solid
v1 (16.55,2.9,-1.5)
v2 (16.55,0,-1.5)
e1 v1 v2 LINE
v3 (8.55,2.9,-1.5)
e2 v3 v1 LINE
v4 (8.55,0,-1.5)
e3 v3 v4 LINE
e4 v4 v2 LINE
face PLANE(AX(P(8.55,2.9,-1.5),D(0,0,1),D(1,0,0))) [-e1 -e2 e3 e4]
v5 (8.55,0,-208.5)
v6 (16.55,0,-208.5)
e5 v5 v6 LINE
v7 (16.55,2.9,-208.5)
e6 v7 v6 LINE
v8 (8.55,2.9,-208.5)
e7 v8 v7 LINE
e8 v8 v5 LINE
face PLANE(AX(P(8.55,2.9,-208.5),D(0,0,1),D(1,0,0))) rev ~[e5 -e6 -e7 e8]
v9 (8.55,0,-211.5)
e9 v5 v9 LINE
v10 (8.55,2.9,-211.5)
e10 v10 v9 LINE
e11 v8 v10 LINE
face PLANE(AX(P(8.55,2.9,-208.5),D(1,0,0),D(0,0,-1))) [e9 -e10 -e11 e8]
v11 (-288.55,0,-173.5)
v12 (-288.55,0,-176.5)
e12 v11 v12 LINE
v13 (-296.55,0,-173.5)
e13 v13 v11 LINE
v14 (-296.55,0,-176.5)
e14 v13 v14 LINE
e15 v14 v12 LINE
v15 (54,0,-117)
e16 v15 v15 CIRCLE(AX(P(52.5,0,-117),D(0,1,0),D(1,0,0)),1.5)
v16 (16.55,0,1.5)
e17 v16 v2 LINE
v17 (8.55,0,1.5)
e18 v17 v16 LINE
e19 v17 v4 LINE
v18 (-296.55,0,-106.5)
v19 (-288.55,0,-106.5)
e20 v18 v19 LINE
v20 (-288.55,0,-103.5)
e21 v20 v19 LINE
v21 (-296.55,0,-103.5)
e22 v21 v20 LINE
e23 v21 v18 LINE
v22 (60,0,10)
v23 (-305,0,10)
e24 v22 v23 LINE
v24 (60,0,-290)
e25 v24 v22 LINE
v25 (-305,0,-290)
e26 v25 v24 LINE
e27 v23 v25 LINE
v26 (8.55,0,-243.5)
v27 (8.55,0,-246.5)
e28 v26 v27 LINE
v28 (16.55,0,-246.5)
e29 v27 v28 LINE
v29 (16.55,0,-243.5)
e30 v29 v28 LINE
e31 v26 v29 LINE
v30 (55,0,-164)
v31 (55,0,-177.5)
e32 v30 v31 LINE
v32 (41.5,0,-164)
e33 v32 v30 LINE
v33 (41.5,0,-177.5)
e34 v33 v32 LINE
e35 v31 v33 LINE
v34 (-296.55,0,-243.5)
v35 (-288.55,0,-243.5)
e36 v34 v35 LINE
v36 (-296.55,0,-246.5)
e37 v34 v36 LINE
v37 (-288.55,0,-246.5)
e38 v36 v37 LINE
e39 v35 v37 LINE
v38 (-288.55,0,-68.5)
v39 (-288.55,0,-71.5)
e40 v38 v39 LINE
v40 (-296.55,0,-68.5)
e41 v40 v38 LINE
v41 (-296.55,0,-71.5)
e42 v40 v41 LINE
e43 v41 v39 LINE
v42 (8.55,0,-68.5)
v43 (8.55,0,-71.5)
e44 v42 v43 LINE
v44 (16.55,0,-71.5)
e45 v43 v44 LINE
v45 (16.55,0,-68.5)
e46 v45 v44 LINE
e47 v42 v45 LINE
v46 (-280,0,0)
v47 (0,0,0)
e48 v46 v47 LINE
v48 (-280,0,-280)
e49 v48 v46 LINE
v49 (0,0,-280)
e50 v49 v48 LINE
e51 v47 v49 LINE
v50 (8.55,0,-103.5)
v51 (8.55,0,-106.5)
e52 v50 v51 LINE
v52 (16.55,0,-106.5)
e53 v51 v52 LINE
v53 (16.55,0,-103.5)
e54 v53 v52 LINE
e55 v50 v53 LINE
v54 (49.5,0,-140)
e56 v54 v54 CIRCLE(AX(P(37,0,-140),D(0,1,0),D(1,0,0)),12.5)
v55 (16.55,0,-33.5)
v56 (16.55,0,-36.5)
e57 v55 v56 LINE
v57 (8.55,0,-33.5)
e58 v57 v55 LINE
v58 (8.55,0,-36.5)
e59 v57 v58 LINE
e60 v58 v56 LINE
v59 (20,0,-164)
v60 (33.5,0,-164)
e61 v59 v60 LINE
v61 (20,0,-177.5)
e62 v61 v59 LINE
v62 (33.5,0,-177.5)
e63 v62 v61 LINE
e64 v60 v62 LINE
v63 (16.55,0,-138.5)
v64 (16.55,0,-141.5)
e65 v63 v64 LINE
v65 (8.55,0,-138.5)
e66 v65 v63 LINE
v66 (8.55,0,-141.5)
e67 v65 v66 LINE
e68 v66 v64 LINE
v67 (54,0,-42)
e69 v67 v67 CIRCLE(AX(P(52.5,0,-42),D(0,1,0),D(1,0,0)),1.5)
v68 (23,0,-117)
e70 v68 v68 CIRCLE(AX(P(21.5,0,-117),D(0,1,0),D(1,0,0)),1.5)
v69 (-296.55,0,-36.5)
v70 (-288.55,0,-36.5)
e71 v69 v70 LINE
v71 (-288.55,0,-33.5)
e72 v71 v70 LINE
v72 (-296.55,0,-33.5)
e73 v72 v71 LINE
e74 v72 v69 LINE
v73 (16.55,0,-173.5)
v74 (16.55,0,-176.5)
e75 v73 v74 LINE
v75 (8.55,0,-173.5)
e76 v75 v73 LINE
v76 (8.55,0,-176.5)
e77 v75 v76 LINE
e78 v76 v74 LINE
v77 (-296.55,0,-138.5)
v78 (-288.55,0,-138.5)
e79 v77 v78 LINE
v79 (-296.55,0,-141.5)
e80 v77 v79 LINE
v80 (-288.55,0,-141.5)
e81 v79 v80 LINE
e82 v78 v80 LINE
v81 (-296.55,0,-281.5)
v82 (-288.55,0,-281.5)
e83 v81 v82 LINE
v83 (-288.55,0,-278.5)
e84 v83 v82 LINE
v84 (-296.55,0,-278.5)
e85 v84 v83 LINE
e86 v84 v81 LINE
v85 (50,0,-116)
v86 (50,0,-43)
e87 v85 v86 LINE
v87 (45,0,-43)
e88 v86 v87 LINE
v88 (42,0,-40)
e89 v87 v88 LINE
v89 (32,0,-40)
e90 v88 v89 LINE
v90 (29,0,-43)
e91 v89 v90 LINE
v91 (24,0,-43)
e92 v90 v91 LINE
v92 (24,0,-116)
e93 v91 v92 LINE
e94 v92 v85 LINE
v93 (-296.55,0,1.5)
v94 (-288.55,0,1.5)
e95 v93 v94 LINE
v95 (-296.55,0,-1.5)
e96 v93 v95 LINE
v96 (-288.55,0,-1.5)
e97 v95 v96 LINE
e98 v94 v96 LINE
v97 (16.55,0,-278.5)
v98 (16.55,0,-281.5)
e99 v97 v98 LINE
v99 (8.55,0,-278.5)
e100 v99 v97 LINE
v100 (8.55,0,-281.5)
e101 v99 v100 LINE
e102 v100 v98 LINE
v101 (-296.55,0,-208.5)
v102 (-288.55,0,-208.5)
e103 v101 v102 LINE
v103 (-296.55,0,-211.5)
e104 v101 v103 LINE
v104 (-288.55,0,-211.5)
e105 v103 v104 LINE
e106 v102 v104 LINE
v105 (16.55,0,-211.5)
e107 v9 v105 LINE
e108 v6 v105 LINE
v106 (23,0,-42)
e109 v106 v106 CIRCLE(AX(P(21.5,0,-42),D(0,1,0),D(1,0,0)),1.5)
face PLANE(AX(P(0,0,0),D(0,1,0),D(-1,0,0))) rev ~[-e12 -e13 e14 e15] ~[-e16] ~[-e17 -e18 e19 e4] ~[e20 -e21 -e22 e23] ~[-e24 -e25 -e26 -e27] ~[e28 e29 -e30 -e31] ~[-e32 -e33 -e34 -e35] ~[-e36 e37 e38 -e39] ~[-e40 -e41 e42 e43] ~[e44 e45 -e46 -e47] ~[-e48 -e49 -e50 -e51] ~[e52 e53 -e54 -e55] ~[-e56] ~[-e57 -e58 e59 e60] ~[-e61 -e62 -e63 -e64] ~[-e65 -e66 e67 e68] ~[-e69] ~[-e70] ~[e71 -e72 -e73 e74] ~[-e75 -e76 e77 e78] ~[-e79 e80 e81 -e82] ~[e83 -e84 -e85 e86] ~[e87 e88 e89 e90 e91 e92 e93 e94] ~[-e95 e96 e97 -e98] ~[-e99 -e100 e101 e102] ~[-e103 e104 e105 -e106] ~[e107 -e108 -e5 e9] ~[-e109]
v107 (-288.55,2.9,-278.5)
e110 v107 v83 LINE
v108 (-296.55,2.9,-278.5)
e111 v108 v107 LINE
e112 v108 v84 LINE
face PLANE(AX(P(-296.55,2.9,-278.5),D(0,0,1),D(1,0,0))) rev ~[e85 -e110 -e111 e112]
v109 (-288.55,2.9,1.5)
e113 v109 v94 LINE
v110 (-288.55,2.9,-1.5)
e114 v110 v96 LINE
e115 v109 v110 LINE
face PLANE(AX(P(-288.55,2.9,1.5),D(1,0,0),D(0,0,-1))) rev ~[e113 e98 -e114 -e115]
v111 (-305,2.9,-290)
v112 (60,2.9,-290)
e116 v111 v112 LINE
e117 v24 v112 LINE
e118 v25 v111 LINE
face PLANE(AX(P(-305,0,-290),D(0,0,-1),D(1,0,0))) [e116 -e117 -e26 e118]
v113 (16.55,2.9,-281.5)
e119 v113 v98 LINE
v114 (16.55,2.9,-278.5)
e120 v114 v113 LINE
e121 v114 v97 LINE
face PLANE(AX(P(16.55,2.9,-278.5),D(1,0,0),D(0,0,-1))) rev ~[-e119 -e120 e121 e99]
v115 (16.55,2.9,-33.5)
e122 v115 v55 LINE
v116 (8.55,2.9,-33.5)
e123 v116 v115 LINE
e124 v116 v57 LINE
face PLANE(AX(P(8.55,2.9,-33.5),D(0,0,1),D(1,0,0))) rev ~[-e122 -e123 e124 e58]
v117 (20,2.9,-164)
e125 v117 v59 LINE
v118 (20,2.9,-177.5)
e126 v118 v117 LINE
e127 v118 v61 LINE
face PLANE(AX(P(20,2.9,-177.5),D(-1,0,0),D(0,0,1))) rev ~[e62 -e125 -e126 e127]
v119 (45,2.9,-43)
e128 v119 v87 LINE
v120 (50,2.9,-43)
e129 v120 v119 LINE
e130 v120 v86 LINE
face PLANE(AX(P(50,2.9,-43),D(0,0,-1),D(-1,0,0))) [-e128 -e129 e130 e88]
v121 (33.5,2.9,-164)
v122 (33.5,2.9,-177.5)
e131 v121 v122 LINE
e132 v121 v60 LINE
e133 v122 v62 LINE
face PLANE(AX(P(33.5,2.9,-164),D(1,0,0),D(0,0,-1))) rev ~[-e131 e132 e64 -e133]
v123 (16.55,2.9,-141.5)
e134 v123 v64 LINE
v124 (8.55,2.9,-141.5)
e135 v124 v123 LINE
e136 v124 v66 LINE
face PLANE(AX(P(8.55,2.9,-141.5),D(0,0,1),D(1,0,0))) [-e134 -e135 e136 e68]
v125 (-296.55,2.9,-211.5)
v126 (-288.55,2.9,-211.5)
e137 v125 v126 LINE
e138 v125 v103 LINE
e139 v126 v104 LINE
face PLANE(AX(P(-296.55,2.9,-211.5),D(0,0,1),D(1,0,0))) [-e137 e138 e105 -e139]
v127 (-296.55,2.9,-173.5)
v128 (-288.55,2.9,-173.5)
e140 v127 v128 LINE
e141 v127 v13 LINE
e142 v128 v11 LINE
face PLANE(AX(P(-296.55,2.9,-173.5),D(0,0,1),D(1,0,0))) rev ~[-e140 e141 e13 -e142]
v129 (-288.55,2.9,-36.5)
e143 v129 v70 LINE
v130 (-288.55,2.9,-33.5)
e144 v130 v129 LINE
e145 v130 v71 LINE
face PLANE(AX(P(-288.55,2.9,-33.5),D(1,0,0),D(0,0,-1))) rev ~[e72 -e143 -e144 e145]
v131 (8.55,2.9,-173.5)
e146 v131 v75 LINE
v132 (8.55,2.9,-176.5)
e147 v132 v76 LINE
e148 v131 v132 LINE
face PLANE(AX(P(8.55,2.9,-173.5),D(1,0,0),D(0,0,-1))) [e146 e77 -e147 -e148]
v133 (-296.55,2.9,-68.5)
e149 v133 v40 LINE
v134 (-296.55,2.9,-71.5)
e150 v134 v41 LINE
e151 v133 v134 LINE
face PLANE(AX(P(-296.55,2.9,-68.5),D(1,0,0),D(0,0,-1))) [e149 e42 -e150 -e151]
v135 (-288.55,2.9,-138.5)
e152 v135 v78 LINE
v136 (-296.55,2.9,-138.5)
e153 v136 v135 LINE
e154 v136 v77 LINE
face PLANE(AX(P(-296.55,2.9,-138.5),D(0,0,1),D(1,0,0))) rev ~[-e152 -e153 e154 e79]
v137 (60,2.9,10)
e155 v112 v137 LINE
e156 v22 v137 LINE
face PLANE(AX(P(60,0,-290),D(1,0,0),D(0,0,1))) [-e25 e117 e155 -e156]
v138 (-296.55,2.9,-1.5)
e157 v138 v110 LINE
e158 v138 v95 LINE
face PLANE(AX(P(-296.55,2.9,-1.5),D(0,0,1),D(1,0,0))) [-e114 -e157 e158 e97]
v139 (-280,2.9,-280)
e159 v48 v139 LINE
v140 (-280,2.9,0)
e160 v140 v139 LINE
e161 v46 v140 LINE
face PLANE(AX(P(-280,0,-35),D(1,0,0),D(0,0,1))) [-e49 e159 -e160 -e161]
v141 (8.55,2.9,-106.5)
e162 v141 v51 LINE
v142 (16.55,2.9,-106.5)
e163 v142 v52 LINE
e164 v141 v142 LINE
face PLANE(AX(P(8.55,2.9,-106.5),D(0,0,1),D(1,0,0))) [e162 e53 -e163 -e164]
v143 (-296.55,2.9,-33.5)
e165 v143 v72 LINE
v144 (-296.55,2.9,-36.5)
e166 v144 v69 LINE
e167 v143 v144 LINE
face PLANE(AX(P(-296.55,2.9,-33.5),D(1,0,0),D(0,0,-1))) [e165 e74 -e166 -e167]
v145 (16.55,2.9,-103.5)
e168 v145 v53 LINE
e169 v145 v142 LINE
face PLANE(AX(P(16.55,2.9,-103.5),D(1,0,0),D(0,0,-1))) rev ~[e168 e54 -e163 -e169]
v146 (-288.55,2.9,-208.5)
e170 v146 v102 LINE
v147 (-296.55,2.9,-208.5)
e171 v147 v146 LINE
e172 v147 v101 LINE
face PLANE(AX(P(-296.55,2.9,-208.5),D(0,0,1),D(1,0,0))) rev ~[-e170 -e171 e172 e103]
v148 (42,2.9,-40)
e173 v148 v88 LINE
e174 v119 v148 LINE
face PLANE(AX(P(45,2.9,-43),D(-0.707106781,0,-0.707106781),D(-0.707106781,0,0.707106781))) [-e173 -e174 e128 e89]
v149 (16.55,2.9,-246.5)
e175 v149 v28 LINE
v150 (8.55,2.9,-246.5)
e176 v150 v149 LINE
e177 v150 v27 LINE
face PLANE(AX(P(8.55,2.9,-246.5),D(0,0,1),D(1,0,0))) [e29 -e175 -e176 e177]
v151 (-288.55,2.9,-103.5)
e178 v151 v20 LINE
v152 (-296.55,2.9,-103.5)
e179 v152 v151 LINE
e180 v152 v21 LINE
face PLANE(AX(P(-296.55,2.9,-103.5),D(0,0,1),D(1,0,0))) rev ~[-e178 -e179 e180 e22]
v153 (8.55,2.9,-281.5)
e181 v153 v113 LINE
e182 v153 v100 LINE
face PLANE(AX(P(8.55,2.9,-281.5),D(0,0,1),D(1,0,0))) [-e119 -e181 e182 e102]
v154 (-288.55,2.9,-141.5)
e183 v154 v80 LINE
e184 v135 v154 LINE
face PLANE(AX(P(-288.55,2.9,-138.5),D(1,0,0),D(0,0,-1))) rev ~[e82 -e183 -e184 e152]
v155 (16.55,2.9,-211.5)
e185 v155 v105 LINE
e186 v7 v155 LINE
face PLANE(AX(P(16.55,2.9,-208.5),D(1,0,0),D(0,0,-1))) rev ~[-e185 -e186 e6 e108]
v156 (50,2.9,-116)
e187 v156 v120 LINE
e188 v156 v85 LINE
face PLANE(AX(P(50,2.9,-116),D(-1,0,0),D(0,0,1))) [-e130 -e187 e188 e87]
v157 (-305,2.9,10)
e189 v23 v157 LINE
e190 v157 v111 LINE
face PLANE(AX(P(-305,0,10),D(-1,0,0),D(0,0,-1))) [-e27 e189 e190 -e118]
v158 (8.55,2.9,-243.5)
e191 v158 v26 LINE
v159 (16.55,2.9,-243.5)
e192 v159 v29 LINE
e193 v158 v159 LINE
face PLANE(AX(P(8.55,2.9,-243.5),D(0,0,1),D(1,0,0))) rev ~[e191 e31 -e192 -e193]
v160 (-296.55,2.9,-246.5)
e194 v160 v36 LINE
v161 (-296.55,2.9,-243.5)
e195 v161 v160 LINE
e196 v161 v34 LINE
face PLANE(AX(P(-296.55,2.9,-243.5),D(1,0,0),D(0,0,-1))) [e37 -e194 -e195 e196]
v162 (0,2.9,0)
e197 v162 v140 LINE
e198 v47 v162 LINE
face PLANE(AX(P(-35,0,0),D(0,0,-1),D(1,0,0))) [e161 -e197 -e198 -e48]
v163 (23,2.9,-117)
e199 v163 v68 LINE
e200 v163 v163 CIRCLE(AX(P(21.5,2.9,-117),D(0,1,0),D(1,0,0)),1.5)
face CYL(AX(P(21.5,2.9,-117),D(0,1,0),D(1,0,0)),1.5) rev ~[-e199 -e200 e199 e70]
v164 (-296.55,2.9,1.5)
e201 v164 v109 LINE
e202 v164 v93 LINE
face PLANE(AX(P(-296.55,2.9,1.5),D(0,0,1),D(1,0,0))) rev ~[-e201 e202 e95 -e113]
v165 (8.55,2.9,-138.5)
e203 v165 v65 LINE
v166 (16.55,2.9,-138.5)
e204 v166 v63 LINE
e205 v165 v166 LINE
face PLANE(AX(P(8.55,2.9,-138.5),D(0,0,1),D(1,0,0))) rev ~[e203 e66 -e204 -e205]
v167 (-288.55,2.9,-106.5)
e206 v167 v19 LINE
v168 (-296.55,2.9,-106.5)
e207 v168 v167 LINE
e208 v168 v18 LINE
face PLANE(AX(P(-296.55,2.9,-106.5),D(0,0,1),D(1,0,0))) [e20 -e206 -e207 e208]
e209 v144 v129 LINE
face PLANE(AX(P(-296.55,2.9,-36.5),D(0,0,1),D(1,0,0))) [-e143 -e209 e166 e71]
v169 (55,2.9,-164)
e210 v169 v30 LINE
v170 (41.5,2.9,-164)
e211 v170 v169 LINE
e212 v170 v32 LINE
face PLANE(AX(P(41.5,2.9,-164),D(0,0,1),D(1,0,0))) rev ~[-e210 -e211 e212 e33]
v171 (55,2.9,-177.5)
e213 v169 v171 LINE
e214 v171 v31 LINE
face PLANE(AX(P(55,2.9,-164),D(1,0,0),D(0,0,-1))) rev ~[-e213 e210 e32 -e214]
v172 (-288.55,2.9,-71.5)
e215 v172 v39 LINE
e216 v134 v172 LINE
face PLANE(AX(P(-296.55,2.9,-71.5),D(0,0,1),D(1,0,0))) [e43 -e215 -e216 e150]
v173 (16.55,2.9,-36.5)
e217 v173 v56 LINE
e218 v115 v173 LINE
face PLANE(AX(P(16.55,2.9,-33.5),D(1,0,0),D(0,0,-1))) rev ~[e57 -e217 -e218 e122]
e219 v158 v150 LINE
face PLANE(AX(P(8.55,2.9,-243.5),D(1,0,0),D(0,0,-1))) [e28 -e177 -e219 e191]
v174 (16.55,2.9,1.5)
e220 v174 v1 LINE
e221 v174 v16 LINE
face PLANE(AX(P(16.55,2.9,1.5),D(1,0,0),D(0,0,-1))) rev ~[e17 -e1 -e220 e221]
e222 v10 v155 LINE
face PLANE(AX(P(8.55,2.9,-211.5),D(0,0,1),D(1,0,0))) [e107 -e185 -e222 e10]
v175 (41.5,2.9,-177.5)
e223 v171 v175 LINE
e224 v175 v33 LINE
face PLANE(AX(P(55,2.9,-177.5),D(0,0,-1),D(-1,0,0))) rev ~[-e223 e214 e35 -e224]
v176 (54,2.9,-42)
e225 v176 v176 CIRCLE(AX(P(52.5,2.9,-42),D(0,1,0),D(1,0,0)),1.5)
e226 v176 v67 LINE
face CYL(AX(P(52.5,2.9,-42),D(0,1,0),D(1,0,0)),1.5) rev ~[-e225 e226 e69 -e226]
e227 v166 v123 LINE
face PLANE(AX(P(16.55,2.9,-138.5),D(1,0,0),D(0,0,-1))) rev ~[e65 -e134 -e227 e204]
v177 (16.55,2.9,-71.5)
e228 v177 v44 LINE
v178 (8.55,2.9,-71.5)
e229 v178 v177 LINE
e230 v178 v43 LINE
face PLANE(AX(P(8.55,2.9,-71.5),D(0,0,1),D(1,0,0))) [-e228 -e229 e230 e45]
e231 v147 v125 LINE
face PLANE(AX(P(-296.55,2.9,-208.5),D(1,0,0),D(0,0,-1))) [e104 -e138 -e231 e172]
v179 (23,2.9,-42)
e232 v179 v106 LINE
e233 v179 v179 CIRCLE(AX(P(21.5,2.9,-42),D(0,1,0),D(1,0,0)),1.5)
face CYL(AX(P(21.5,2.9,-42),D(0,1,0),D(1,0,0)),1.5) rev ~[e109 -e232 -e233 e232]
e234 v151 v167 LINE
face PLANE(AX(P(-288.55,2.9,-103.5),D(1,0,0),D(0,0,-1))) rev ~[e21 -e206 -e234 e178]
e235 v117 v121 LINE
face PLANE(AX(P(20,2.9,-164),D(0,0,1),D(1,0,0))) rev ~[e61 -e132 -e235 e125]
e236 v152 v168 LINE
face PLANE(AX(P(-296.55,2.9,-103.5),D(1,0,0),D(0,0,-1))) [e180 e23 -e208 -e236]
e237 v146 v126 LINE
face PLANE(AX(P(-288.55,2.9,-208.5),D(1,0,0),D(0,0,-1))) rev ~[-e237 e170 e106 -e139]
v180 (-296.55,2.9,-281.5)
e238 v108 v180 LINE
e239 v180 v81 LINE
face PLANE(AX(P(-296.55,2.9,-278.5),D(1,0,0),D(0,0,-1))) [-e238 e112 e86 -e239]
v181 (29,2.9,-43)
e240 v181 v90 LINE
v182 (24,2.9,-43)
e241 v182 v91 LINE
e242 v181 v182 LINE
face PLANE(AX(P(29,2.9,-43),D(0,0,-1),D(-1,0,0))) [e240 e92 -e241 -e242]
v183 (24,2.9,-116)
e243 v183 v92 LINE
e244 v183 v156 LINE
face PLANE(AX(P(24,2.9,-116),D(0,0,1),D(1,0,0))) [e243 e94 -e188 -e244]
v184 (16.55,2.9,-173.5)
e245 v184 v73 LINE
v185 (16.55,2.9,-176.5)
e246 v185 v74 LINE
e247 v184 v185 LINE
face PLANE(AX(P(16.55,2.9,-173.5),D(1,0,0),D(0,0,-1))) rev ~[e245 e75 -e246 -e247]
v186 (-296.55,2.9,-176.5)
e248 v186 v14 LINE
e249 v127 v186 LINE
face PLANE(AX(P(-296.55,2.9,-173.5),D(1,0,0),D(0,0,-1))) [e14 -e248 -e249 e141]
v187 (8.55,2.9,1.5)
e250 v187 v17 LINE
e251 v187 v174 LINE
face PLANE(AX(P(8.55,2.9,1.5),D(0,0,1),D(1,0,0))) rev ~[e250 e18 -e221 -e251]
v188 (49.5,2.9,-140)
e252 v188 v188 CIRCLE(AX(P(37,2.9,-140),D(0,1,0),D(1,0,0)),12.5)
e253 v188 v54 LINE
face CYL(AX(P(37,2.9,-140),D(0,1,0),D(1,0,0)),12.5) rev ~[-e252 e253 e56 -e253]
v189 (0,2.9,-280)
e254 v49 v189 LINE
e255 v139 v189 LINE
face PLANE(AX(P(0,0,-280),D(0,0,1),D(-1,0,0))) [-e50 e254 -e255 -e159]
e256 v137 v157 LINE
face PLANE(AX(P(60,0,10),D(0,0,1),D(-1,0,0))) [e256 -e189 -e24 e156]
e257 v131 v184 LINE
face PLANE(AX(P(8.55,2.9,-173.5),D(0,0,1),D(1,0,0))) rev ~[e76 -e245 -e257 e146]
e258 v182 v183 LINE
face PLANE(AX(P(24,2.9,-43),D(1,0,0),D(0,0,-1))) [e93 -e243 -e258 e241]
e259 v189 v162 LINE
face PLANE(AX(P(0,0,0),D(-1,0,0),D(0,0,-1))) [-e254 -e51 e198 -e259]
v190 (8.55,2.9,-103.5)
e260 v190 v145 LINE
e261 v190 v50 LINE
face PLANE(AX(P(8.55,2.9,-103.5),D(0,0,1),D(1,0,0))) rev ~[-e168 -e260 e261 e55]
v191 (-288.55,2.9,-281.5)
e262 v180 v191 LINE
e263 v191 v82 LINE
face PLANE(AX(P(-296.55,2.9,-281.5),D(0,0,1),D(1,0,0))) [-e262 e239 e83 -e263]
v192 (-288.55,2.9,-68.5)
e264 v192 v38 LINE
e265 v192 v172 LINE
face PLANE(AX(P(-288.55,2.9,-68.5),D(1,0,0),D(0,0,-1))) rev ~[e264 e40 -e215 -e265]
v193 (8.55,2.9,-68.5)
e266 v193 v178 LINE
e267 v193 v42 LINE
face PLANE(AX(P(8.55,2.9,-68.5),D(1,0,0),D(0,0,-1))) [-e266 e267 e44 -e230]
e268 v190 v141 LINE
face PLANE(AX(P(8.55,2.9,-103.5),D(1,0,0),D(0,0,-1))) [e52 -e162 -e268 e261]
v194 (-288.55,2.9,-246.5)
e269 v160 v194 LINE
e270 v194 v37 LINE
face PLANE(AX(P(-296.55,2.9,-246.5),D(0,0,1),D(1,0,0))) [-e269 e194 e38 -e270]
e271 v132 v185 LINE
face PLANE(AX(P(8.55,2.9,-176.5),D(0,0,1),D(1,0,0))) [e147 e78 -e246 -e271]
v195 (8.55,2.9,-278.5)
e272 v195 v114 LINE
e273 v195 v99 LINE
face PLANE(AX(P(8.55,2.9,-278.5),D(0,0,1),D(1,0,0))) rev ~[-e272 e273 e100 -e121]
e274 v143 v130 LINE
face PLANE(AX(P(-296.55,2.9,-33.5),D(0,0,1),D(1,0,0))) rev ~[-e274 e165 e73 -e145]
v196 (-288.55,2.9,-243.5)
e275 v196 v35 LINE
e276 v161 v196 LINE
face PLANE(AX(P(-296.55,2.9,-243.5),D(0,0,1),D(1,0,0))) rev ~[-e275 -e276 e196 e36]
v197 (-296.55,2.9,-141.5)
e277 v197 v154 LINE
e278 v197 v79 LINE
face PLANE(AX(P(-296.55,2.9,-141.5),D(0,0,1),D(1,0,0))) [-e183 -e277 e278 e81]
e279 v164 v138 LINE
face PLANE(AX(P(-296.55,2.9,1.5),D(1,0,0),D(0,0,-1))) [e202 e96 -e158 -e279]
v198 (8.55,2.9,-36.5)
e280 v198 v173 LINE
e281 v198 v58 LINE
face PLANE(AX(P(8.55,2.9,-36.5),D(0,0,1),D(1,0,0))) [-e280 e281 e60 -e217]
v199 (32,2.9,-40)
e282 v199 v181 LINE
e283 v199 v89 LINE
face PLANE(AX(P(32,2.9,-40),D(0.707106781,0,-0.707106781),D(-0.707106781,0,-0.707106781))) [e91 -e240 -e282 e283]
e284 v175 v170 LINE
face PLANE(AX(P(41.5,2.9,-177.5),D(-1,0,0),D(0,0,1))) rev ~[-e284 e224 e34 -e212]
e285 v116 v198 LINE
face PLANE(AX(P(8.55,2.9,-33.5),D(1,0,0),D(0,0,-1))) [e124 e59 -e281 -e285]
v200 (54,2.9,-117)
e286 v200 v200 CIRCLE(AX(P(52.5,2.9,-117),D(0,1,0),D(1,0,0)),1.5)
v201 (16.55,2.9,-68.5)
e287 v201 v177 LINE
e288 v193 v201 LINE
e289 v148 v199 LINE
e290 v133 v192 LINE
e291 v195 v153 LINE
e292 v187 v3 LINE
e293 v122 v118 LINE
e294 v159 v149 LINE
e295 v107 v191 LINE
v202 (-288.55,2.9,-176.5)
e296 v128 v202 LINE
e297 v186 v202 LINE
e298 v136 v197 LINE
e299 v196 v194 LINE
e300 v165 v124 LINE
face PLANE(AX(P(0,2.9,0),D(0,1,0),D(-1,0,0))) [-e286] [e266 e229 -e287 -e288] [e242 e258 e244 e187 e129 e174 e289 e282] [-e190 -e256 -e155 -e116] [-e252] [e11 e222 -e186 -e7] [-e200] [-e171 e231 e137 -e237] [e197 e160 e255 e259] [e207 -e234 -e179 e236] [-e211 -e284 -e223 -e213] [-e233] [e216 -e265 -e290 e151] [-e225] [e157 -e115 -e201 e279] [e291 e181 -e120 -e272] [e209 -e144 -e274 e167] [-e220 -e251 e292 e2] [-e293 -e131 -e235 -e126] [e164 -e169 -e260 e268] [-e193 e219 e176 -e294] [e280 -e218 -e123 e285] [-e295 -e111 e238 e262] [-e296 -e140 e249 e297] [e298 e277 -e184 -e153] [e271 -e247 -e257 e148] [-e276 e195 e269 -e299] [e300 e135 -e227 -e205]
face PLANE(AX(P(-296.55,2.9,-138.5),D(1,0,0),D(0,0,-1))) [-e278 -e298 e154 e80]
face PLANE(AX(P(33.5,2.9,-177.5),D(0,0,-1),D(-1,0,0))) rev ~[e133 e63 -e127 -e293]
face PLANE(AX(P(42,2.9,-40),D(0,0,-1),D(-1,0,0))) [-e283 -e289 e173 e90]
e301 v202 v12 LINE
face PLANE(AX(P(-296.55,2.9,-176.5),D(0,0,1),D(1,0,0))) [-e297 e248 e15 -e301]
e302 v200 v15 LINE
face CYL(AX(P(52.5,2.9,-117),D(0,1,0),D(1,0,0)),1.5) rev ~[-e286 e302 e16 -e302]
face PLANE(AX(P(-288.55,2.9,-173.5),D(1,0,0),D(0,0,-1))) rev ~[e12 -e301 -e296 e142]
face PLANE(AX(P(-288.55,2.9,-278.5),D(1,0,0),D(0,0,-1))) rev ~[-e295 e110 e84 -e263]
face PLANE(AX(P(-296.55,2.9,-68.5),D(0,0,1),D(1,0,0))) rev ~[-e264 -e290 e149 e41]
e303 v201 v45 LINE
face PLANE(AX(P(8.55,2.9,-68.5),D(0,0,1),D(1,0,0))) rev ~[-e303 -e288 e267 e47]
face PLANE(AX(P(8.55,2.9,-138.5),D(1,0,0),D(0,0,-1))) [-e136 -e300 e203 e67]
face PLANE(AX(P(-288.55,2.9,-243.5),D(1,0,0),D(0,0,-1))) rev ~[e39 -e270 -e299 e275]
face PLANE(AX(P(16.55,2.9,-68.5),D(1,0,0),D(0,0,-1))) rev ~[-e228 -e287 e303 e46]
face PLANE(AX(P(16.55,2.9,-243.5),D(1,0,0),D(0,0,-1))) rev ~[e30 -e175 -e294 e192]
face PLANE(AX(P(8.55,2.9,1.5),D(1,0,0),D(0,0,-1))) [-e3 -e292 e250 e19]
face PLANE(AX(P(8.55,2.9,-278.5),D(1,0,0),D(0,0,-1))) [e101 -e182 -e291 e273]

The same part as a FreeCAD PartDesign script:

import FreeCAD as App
import Part
import Sketcher
from FreeCAD import Vector
Q = App.Units.Quantity


def add_polygon(sketch, points):
    """Adds a closed chain of lines whose ends are joined by coincident constraints."""
    first, n = sketch.GeometryCount, len(points)
    for a, b in zip(points, points[1:] + points[:1]):
        sketch.addGeometry(Part.LineSegment(App.Vector(*a, 0), App.Vector(*b, 0)), False)
    for i in range(n):
        sketch.addConstraint(Sketcher.Constraint("Coincident", first + i, 2, first + (i + 1) % n, 1))

doc = App.newDocument("Part")
body = doc.addObject("PartDesign::Body", "Body")

sketch1 = body.newObject("Sketcher::SketchObject", "Sketch")
sketch1.AttachmentSupport = (doc.getObject("XZ_Plane"), [""])
sketch1.MapMode = "FlatFace"
add_polygon(sketch1, [(-305, 10), (60, 10), (60, -290), (-305, -290)])
add_polygon(sketch1, [(0, 0), (-280, 0), (-280, -280), (0, -280)])
sketch1.addConstraint([
    Sketcher.Constraint("Horizontal", 0),
    Sketcher.Constraint("Vertical", 1),
    Sketcher.Constraint("Horizontal", 2),
    Sketcher.Constraint("Vertical", 3),
    Sketcher.Constraint("Horizontal", 4),
    Sketcher.Constraint("Vertical", 5),
    Sketcher.Constraint("Horizontal", 6),
    Sketcher.Constraint("Vertical", 7),
    Sketcher.Constraint("Coincident", 7, 2, -1, 1),
    Sketcher.Constraint("Equal", 6, 5),
    Sketcher.Constraint("DistanceX", -1, 1, 0, 2, Q("60 mm")),
    Sketcher.Constraint("DistanceY", -1, 1, 0, 2, Q("10 mm")),
    Sketcher.Constraint("DistanceX", 3, 2, 4, 2, Q("25 mm")),
    Sketcher.Constraint("DistanceY", 2, 2, 5, 2, Q("10 mm")),
    Sketcher.Constraint("DistanceX", 0, 1, 0, 2, Q("365 mm")),
])
pad1 = body.newObject("PartDesign::Pad", "Pad")
pad1.Profile = sketch1
pad1.Length = 2.9
pad1.Reversed = True

sketch2 = body.newObject("Sketcher::SketchObject", "Sketch001")
sketch2.AttachmentSupport = (doc.getObject("XZ_Plane"), [""])
sketch2.MapMode = "FlatFace"
sketch2.AttachmentOffset = App.Placement(Vector(0, 0, -2.9), App.Rotation())
add_polygon(sketch2, [(-296.6, -71.5), (-296.6, -68.5), (-288.6, -68.5), (-288.6, -71.5)])
add_polygon(sketch2, [(-296.6, -106.5), (-296.6, -103.5), (-288.6, -103.5), (-288.6, -106.5)])
add_polygon(sketch2, [(-296.6, -141.5), (-296.6, -138.5), (-288.6, -138.5), (-288.6, -141.5)])
add_polygon(sketch2, [(-296.6, -176.5), (-296.6, -173.5), (-288.6, -173.5), (-288.6, -176.5)])
add_polygon(sketch2, [(-296.6, -211.5), (-296.6, -208.5), (-288.6, -208.5), (-288.6, -211.5)])
add_polygon(sketch2, [(-296.6, -246.5), (-296.6, -243.5), (-288.6, -243.5), (-288.6, -246.5)])
add_polygon(sketch2, [(-296.6, -281.5), (-296.6, -278.5), (-288.6, -278.5), (-288.6, -281.5)])
add_polygon(sketch2, [(8.6, -281.5), (8.6, -278.5), (16.6, -278.5), (16.6, -281.5)])
add_polygon(sketch2, [(8.6, -246.5), (8.6, -243.5), (16.6, -243.5), (16.6, -246.5)])
add_polygon(sketch2, [(8.6, -106.5), (8.6, -103.5), (16.6, -103.5), (16.6, -106.5)])
add_polygon(sketch2, [(8.6, -141.5), (8.6, -138.5), (16.6, -138.5), (16.6, -141.5)])
add_polygon(sketch2, [(8.6, -211.5), (8.6, -208.5), (16.6, -208.5), (16.6, -211.5)])
add_polygon(sketch2, [(8.6, -176.5), (8.6, -173.5), (16.6, -173.5), (16.6, -176.5)])
add_polygon(sketch2, [(8.6, -1.5), (8.6, 1.5), (16.6, 1.5), (16.6, -1.5)])
add_polygon(sketch2, [(8.6, -36.5), (8.6, -33.5), (16.6, -33.5), (16.6, -36.5)])
add_polygon(sketch2, [(8.6, -71.5), (8.6, -68.5), (16.6, -68.5), (16.6, -71.5)])
add_polygon(sketch2, [(-296.6, -1.5), (-296.6, 1.5), (-288.6, 1.5), (-288.6, -1.5)])
add_polygon(sketch2, [(-296.6, -36.5), (-296.6, -33.5), (-288.6, -33.5), (-288.6, -36.5)])
sketch2.addConstraint([
    Sketcher.Constraint("Vertical", 0),
    Sketcher.Constraint("Horizontal", 1),
    Sketcher.Constraint("Vertical", 2),
    Sketcher.Constraint("Horizontal", 3),
    Sketcher.Constraint("Vertical", 4),
    Sketcher.Constraint("Horizontal", 5),
    Sketcher.Constraint("Vertical", 6),
    Sketcher.Constraint("Horizontal", 7),
    Sketcher.Constraint("Vertical", 8),
    Sketcher.Constraint("Horizontal", 9),
    Sketcher.Constraint("Vertical", 10),
    Sketcher.Constraint("Horizontal", 11),
    Sketcher.Constraint("Vertical", 12),
    Sketcher.Constraint("Horizontal", 13),
    Sketcher.Constraint("Vertical", 14),
    Sketcher.Constraint("Horizontal", 15),
    Sketcher.Constraint("Vertical", 16),
    Sketcher.Constraint("Horizontal", 17),
    Sketcher.Constraint("Vertical", 18),
    Sketcher.Constraint("Horizontal", 19),
    Sketcher.Constraint("Vertical", 20),
    Sketcher.Constraint("Horizontal", 21),
    Sketcher.Constraint("Vertical", 22),
    Sketcher.Constraint("Horizontal", 23),
    Sketcher.Constraint("Vertical", 24),
    Sketcher.Constraint("Horizontal", 25),
    Sketcher.Constraint("Vertical", 26),
    Sketcher.Constraint("Horizontal", 27),
    Sketcher.Constraint("Vertical", 28),
    Sketcher.Constraint("Horizontal", 29),
    Sketcher.Constraint("Vertical", 30),
    Sketcher.Constraint("Horizontal", 31),
    Sketcher.Constraint("Vertical", 32),
    Sketcher.Constraint("Horizontal", 33),
    Sketcher.Constraint("Vertical", 34),
    Sketcher.Constraint("Horizontal", 35),
    Sketcher.Constraint("Vertical", 36),
    Sketcher.Constraint("Horizontal", 37),
    Sketcher.Constraint("Vertical", 38),
    Sketcher.Constraint("Horizontal", 39),
    Sketcher.Constraint("Vertical", 40),
    Sketcher.Constraint("Horizontal", 41),
    Sketcher.Constraint("Vertical", 42),
    Sketcher.Constraint("Horizontal", 43),
    Sketcher.Constraint("Vertical", 44),
    Sketcher.Constraint("Horizontal", 45),
    Sketcher.Constraint("Vertical", 46),
    Sketcher.Constraint("Horizontal", 47),
    Sketcher.Constraint("Vertical", 48),
    Sketcher.Constraint("Horizontal", 49),
    Sketcher.Constraint("Vertical", 50),
    Sketcher.Constraint("Horizontal", 51),
    Sketcher.Constraint("Vertical", 52),
    Sketcher.Constraint("Horizontal", 53),
    Sketcher.Constraint("Vertical", 54),
    Sketcher.Constraint("Horizontal", 55),
    Sketcher.Constraint("Vertical", 56),
    Sketcher.Constraint("Horizontal", 57),
    Sketcher.Constraint("Vertical", 58),
    Sketcher.Constraint("Horizontal", 59),
    Sketcher.Constraint("Vertical", 60),
    Sketcher.Constraint("Horizontal", 61),
    Sketcher.Constraint("Vertical", 62),
    Sketcher.Constraint("Horizontal", 63),
    Sketcher.Constraint("Vertical", 64),
    Sketcher.Constraint("Horizontal", 65),
    Sketcher.Constraint("Vertical", 66),
    Sketcher.Constraint("Horizontal", 67),
    Sketcher.Constraint("Vertical", 68),
    Sketcher.Constraint("Horizontal", 69),
    Sketcher.Constraint("Vertical", 70),
    Sketcher.Constraint("Horizontal", 71),
    Sketcher.Constraint("Horizontal", 25, 2, 28, 2),
    Sketcher.Constraint("Horizontal", 27, 2, 30, 2),
    Sketcher.Constraint("Horizontal", 21, 2, 32, 2),
    Sketcher.Constraint("Horizontal", 23, 2, 34, 2),
    Sketcher.Constraint("Horizontal", 5, 2, 36, 2),
    Sketcher.Constraint("Horizontal", 7, 2, 38, 2),
    Sketcher.Constraint("Horizontal", 9, 2, 40, 2),
    Sketcher.Constraint("Horizontal", 11, 2, 42, 2),
    Sketcher.Constraint("Horizontal", 17, 2, 44, 2),
    Sketcher.Constraint("Horizontal", 19, 2, 46, 2),
    Sketcher.Constraint("Horizontal", 13, 2, 48, 2),
    Sketcher.Constraint("Horizontal", 15, 2, 50, 2),
    Sketcher.Constraint("Horizontal", 1, 2, 60, 2),
    Sketcher.Constraint("Horizontal", 3, 2, 62, 2),
    Sketcher.Constraint("Horizontal", 53, 2, 64, 2),
    Sketcher.Constraint("Horizontal", 55, 2, 66, 2),
    Sketcher.Constraint("Horizontal", 57, 2, 68, 2),
    Sketcher.Constraint("Horizontal", 59, 2, 70, 2),
    Sketcher.Constraint("Vertical", 3, 2, 4, 2),
    Sketcher.Constraint("Vertical", 2, 2, 5, 2),
    Sketcher.Constraint("Vertical", 7, 2, 8, 2),
    Sketcher.Constraint("Vertical", 6, 2, 9, 2),
    Sketcher.Constraint("Vertical", 11, 2, 12, 2),
    Sketcher.Constraint("Vertical", 10, 2, 13, 2),
    Sketcher.Constraint("Vertical", 15, 2, 16, 2),
    Sketcher.Constraint("Vertical", 14, 2, 17, 2),
    Sketcher.Constraint("Vertical", 19, 2, 20, 2),
    Sketcher.Constraint("Vertical", 18, 2, 21, 2),
    Sketcher.Constraint("Vertical", 23, 2, 24, 2),
    Sketcher.Constraint("Vertical", 22, 2, 25, 2),
    Sketcher.Constraint("Vertical", 31, 2, 32, 2),
    Sketcher.Constraint("Vertical", 30, 2, 33, 2),
    Sketcher.Constraint("Vertical", 35, 2, 36, 2),
    Sketcher.Constraint("Vertical", 34, 2, 37, 2),
    Sketcher.Constraint("Vertical", 39, 2, 40, 2),
    Sketcher.Constraint("Vertical", 38, 2, 41, 2),
    Sketcher.Constraint("Vertical", 43, 2, 44, 2),
    Sketcher.Constraint("Vertical", 42, 2, 45, 2),
    Sketcher.Constraint("Vertical", 47, 2, 48, 2),
    Sketcher.Constraint("Vertical", 46, 2, 49, 2),
    Sketcher.Constraint("Vertical", 51, 2, 52, 2),
    Sketcher.Constraint("Vertical", 50, 2, 53, 2),
    Sketcher.Constraint("Vertical", 55, 2, 56, 2),
    Sketcher.Constraint("Vertical", 54, 2, 57, 2),
    Sketcher.Constraint("Vertical", 59, 2, 60, 2),
    Sketcher.Constraint("Vertical", 58, 2, 61, 2),
    Sketcher.Constraint("Vertical", 27, 2, 64, 2),
    Sketcher.Constraint("Vertical", 26, 2, 65, 2),
    Sketcher.Constraint("Vertical", 67, 2, 68, 2),
    Sketcher.Constraint("Vertical", 66, 2, 69, 2),
    Sketcher.Constraint("Equal", 27, 29),
    Sketcher.Constraint("Equal", 2, 4),
    Sketcher.Constraint("Equal", 6, 8),
    Sketcher.Constraint("Equal", 10, 12),
    Sketcher.Constraint("Equal", 14, 16),
    Sketcher.Constraint("Equal", 18, 20),
    Sketcher.Constraint("Equal", 22, 24),
    Sketcher.Constraint("Equal", 50, 52),
    Sketcher.Constraint("Equal", 54, 56),
    Sketcher.Constraint("DistanceX", 1, 1, 1, 2, Q("8 mm")),
    Sketcher.Constraint("DistanceY", 0, 1, 0, 2, Q("3 mm")),
    Sketcher.Constraint("DistanceY", 0, 2, -1, 1, Q("68.5 mm")),
    Sketcher.Constraint("DistanceY", 4, 2, -1, 1, Q("103.5 mm")),
    Sketcher.Constraint("DistanceY", 8, 2, -1, 1, Q("138.5 mm")),
    Sketcher.Constraint("DistanceY", 12, 2, -1, 1, Q("173.5 mm")),
    Sketcher.Constraint("DistanceY", 16, 2, -1, 1, Q("208.5 mm")),
    Sketcher.Constraint("DistanceY", 20, 2, -1, 1, Q("243.5 mm")),
    Sketcher.Constraint("DistanceY", 24, 2, -1, 1, Q("278.5 mm")),
    Sketcher.Constraint("DistanceY", -1, 1, 52, 2, Q("1.5 mm")),
    Sketcher.Constraint("DistanceY", 56, 2, -1, 1, Q("33.5 mm")),
    Sketcher.Constraint("DistanceX", 0, 2, -1, 1, Q("296.55 mm")),
    Sketcher.Constraint("DistanceX", -1, 1, 28, 2, Q("8.55 mm")),
])
pocket1 = body.newObject("PartDesign::Pocket", "Pocket")
pocket1.Profile = sketch2
pocket1.Type = "ThroughAll"
pocket1.Reversed = True

sketch3 = body.newObject("Sketcher::SketchObject", "Sketch002")
sketch3.AttachmentSupport = (doc.getObject("XZ_Plane"), [""])
sketch3.MapMode = "FlatFace"
sketch3.AttachmentOffset = App.Placement(Vector(0, 0, -2.9), App.Rotation())
add_polygon(sketch3, [(24, -116), (24, -43), (29, -43), (32, -40), (42, -40), (45, -43), (50, -43), (50, -116)])
sketch3.addGeometry(Part.Circle(Vector(21.5, -117, 0), Vector(0, 0, 1), 1.5), False)
sketch3.addGeometry(Part.Circle(Vector(52.5, -117, 0), Vector(0, 0, 1), 1.5), False)
sketch3.addGeometry(Part.Circle(Vector(52.5, -42, 0), Vector(0, 0, 1), 1.5), False)
sketch3.addGeometry(Part.Circle(Vector(21.5, -42, 0), Vector(0, 0, 1), 1.5), False)
add_polygon(sketch3, [(41.5, -177.5), (41.5, -164), (55, -164), (55, -177.5)])
add_polygon(sketch3, [(20, -177.5), (20, -164), (33.5, -164), (33.5, -177.5)])
sketch3.addGeometry(Part.Circle(Vector(37, -140, 0), Vector(0, 0, 1), 12.5), False)
sketch3.addConstraint([
    Sketcher.Constraint("Vertical", 0),
    Sketcher.Constraint("Horizontal", 1),
    Sketcher.Constraint("Horizontal", 3),
    Sketcher.Constraint("Horizontal", 5),
    Sketcher.Constraint("Vertical", 6),
    Sketcher.Constraint("Horizontal", 7),
    Sketcher.Constraint("Vertical", 12),
    Sketcher.Constraint("Horizontal", 13),
    Sketcher.Constraint("Vertical", 14),
    Sketcher.Constraint("Horizontal", 15),
    Sketcher.Constraint("Vertical", 16),
    Sketcher.Constraint("Horizontal", 17),
    Sketcher.Constraint("Vertical", 18),
    Sketcher.Constraint("Horizontal", 19),
    Sketcher.Constraint("Equal", 8, 9),
    Sketcher.Constraint("Equal", 9, 10),
    Sketcher.Constraint("Equal", 10, 11),
    Sketcher.Constraint("Perpendicular", 2, 4),
    Sketcher.Constraint("Horizontal", 8, 3, 9, 3),
    Sketcher.Constraint("Horizontal", 10, 3, 11, 3),
    Sketcher.Constraint("Horizontal", 1, 2, 4, 2),
    Sketcher.Constraint("Horizontal", 13, 2, 16, 2),
    Sketcher.Constraint("Horizontal", 15, 2, 18, 2),
    Sketcher.Constraint("Vertical", 9, 3, 10, 3),
    Sketcher.Constraint("Vertical", 8, 3, 11, 3),
    Sketcher.Constraint("Equal", 1, 5),
    Sketcher.Constraint("Equal", 15, 17),
    Sketcher.Constraint("Equal", 19, 12),
    Sketcher.Constraint("Equal", 2, 4),
    Sketcher.Constraint("Diameter", 8, Q("3 mm")),
    Sketcher.Constraint("Diameter", 20, Q("25 mm")),
    Sketcher.Constraint("DistanceX", 1, 1, 1, 2, Q("5 mm")),
    Sketcher.Constraint("DistanceX", 3, 1, 3, 2, Q("10 mm")),
    Sketcher.Constraint("DistanceX", 7, 2, 7, 1, Q("26 mm")),
    Sketcher.Constraint("DistanceY", 0, 1, 0, 2, Q("73 mm")),
    Sketcher.Constraint("DistanceX", 13, 1, 13, 2, Q("13.5 mm")),
    Sketcher.Constraint("DistanceX", -1, 1, 0, 2, Q("24 mm")),
    Sketcher.Constraint("DistanceX", 8, 3, 9, 3, Q("31 mm")),
    Sketcher.Constraint("DistanceY", 9, 3, 10, 3, Q("75 mm")),
    Sketcher.Constraint("DistanceY", 0, 2, 11, 3, Q("1 mm")),
    Sketcher.Constraint("DistanceY", 20, 3, 6, 2, Q("24 mm")),
    Sketcher.Constraint("DistanceY", 12, 2, 20, 3, Q("24 mm")),
    Sketcher.Constraint("DistanceX", 6, 2, 13, 2, Q("5 mm")),
    Sketcher.Constraint("DistanceX", 17, 2, 12, 2, Q("8 mm")),
    Sketcher.Constraint("DistanceY", 8, 3, -1, 1, Q("117 mm")),
    Sketcher.Constraint("DistanceX", -1, 1, 20, 3, Q("37 mm")),
    Sketcher.Constraint("DistanceX", 12, 2, 9, 3, Q("11 mm")),
])
pocket2 = body.newObject("PartDesign::Pocket", "Pocket001")
pocket2.Profile = sketch3
pocket2.Length = 2.9
pocket2.Reversed = True

doc.recompute()
